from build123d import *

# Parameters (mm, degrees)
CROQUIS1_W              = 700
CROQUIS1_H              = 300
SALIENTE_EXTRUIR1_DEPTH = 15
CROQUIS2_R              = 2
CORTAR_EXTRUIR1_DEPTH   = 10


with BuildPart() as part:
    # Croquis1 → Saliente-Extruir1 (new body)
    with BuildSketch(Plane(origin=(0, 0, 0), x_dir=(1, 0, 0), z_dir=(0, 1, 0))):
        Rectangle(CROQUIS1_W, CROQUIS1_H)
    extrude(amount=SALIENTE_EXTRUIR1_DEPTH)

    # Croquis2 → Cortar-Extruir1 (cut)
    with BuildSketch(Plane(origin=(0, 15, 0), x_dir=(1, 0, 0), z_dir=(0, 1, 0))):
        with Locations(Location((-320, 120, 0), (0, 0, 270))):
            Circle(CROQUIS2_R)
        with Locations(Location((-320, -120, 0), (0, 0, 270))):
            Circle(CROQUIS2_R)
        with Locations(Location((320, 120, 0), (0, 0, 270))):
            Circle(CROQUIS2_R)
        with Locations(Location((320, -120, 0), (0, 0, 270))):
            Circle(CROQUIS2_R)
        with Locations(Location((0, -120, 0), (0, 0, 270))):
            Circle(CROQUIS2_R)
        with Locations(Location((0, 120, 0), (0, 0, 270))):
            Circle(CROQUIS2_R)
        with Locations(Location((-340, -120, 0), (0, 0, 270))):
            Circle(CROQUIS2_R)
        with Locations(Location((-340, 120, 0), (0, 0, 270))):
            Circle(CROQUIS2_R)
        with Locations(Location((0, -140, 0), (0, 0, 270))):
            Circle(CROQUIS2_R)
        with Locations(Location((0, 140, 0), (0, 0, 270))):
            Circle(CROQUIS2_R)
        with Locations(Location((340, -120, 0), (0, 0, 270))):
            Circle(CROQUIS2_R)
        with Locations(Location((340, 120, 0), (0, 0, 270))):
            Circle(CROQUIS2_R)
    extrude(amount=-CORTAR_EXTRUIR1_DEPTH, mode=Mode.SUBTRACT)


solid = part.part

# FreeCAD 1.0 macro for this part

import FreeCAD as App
import Part
import Sketcher

V = App.Vector
Q = App.Units.Quantity

doc = App.newDocument("Part")
body = doc.addObject("PartDesign::Body", "Body")

sketch1 = body.newObject("Sketcher::SketchObject", "Sketch")
sketch1.AttachmentSupport = (doc.getObject("XZ_Plane"), [""])
sketch1.MapMode = "FlatFace"
sketch1.addGeometry(Part.LineSegment(V(-350, -150, 0), V(-350, 150, 0)), False)
sketch1.addGeometry(Part.LineSegment(V(-350, 150, 0), V(350, 150, 0)), False)
sketch1.addGeometry(Part.LineSegment(V(350, 150, 0), V(350, -150, 0)), False)
sketch1.addGeometry(Part.LineSegment(V(350, -150, 0), V(-350, -150, 0)), False)
sketch1.addConstraint(Sketcher.Constraint("Coincident", 0, 2, 1, 1))
sketch1.addConstraint(Sketcher.Constraint("Coincident", 1, 2, 2, 1))
sketch1.addConstraint(Sketcher.Constraint("Coincident", 2, 2, 3, 1))
sketch1.addConstraint(Sketcher.Constraint("Coincident", 3, 2, 0, 1))
sketch1.addConstraint(Sketcher.Constraint("Vertical", 0))
sketch1.addConstraint(Sketcher.Constraint("Horizontal", 1))
sketch1.addConstraint(Sketcher.Constraint("Vertical", 2))
sketch1.addConstraint(Sketcher.Constraint("Horizontal", 3))
sketch1.addConstraint(Sketcher.Constraint("Symmetric", 0, 2, 2, 2, -1, 1))
sketch1.addConstraint(Sketcher.Constraint("DistanceX", 1, 1, 1, 2, Q("700 mm")))
sketch1.addConstraint(Sketcher.Constraint("DistanceY", 0, 1, 0, 2, Q("300 mm")))
pad1 = body.newObject("PartDesign::Pad", "Pad")
pad1.Profile = sketch1
pad1.Length = 15
pad1.Reversed = True

sketch2 = body.newObject("Sketcher::SketchObject", "Sketch001")
sketch2.AttachmentSupport = (doc.getObject("XZ_Plane"), [""])
sketch2.MapMode = "FlatFace"
sketch2.AttachmentOffset = App.Placement(V(0, 0, -15), App.Rotation())
sketch2.addGeometry(Part.Circle(V(-320, -120, 0), V(0, 0, 1), 2), False)
sketch2.addGeometry(Part.Circle(V(-320, 120, 0), V(0, 0, 1), 2), False)
sketch2.addGeometry(Part.Circle(V(320, -120, 0), V(0, 0, 1), 2), False)
sketch2.addGeometry(Part.Circle(V(320, 120, 0), V(0, 0, 1), 2), False)
sketch2.addGeometry(Part.Circle(V(0, 120, 0), V(0, 0, 1), 2), False)
sketch2.addGeometry(Part.Circle(V(0, -120, 0), V(0, 0, 1), 2), False)
sketch2.addGeometry(Part.Circle(V(-340, 120, 0), V(0, 0, 1), 2), False)
sketch2.addGeometry(Part.Circle(V(-340, -120, 0), V(0, 0, 1), 2), False)
sketch2.addGeometry(Part.Circle(V(0, 140, 0), V(0, 0, 1), 2), False)
sketch2.addGeometry(Part.Circle(V(0, -140, 0), V(0, 0, 1), 2), False)
sketch2.addGeometry(Part.Circle(V(340, 120, 0), V(0, 0, 1), 2), False)
sketch2.addGeometry(Part.Circle(V(340, -120, 0), V(0, 0, 1), 2), False)
sketch2.addConstraint(Sketcher.Constraint("Equal", 0, 1))
sketch2.addConstraint(Sketcher.Constraint("Equal", 1, 2))
sketch2.addConstraint(Sketcher.Constraint("Equal", 2, 3))
sketch2.addConstraint(Sketcher.Constraint("Equal", 3, 4))
sketch2.addConstraint(Sketcher.Constraint("Equal", 4, 5))
sketch2.addConstraint(Sketcher.Constraint("Equal", 5, 6))
sketch2.addConstraint(Sketcher.Constraint("Equal", 6, 7))
sketch2.addConstraint(Sketcher.Constraint("Equal", 7, 8))
sketch2.addConstraint(Sketcher.Constraint("Equal", 8, 9))
sketch2.addConstraint(Sketcher.Constraint("Equal", 9, 10))
sketch2.addConstraint(Sketcher.Constraint("Equal", 10, 11))
sketch2.addConstraint(Sketcher.Constraint("Symmetric", 1, 3, 2, 3, -1, 1))
sketch2.addConstraint(Sketcher.Constraint("Symmetric", 0, 3, 3, 3, -1, 1))
sketch2.addConstraint(Sketcher.Constraint("Symmetric", 4, 3, 5, 3, -1, 1))
sketch2.addConstraint(Sketcher.Constraint("Symmetric", 8, 3, 9, 3, -1, 1))
sketch2.addConstraint(Sketcher.Constraint("Symmetric", 7, 3, 10, 3, -1, 1))
sketch2.addConstraint(Sketcher.Constraint("Symmetric", 6, 3, 11, 3, -1, 1))
sketch2.addConstraint(Sketcher.Constraint("Symmetric", 0, 3, 2, 3, -2))
sketch2.addConstraint(Sketcher.Constraint("Symmetric", 6, 3, 10, 3, -2))
sketch2.addConstraint(Sketcher.Constraint("PointOnObject", 4, 3, -2))
sketch2.addConstraint(Sketcher.Constraint("PointOnObject", 8, 3, -2))
sketch2.addConstraint(Sketcher.Constraint("Horizontal", 3, 3, 4, 3))
sketch2.addConstraint(Sketcher.Constraint("Horizontal", 4, 3, 6, 3))
sketch2.addConstraint(Sketcher.Constraint("Diameter", 0, Q("4 mm")))
sketch2.addConstraint(Sketcher.Constraint("DistanceX", 0, 3, -1, 1, Q("320 mm")))
sketch2.addConstraint(Sketcher.Constraint("DistanceY", 0, 3, -1, 1, Q("120 mm")))
sketch2.addConstraint(Sketcher.Constraint("DistanceX", 6, 3, -1, 1, Q("340 mm")))
sketch2.addConstraint(Sketcher.Constraint("DistanceY", -1, 1, 8, 3, Q("140 mm")))
pocket1 = body.newObject("PartDesign::Pocket", "Pocket")
pocket1.Profile = sketch2
pocket1.Length = 10
pocket1.Reversed = True

doc.recompute()
